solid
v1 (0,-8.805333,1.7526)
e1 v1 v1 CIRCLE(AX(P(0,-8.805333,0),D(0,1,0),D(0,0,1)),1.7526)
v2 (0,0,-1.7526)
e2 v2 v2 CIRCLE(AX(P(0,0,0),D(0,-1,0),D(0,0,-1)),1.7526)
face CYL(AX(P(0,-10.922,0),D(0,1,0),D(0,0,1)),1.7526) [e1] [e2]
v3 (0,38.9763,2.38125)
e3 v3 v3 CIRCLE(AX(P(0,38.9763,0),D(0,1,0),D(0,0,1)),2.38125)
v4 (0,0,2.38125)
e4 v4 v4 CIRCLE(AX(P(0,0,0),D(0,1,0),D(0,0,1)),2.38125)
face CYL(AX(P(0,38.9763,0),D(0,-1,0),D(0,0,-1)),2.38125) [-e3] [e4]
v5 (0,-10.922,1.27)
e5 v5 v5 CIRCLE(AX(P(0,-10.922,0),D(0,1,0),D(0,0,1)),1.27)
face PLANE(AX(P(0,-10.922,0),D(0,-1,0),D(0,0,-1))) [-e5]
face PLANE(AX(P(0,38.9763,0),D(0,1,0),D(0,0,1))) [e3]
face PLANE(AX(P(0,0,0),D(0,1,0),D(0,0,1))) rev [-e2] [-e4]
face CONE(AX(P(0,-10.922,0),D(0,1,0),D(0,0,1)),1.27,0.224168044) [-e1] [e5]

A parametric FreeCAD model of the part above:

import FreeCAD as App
import Part
import Sketcher
from FreeCAD import Vector
Q = App.Units.Quantity


def add_polygon(sketch, points):
    """Adds a closed chain of lines whose ends are joined by coincident constraints."""
    first, n = sketch.GeometryCount, len(points)
    for a, b in zip(points, points[1:] + points[:1]):
        sketch.addGeometry(Part.LineSegment(App.Vector(*a, 0), App.Vector(*b, 0)), False)
    for i in range(n):
        sketch.addConstraint(Sketcher.Constraint("Coincident", first + i, 2, first + (i + 1) % n, 1))

doc = App.newDocument("Part")
params = doc.addObject("Spreadsheet::Sheet", "Params")
for row, (alias, value) in enumerate([
    ("sketch1_diameter", "0.1875 in"),
    ("pad1_length", "1.5345 in"),
    ("sketch2_diameter", "0.138 in"),
    ("pad2_length", "0.43 in"),
    ("sketch3_height", "0.019 in"),
    ("groove_angle", "360 deg"),
], start=1):
    params.set(f"A{row}", alias)
    params.set(f"B{row}", "=" + value)
    params.setAlias(f"B{row}", alias)

body = doc.addObject("PartDesign::Body", "Body")

sketch1 = body.newObject("Sketcher::SketchObject", "Sketch")
sketch1.AttachmentSupport = (doc.getObject("XZ_Plane"), [""])
sketch1.MapMode = "FlatFace"
sketch1.addGeometry(Part.Circle(Vector(0, 0, 0), Vector(0, 0, 1), 2.4), False)
sketch1.addConstraint([
    Sketcher.Constraint("Coincident", 0, 3, -1, 1),
    Sketcher.Constraint("Diameter", 0, Q("0.1875 in")),
])
sketch1.setExpression("Constraints[1]", "Params.sketch1_diameter")
pad1 = body.newObject("PartDesign::Pad", "Pad")
pad1.Profile = sketch1
pad1.setExpression("Length", "Params.pad1_length")
pad1.Reversed = True

sketch2 = body.newObject("Sketcher::SketchObject", "Sketch001")
sketch2.AttachmentSupport = (doc.getObject("XZ_Plane"), [""])
sketch2.MapMode = "FlatFace"
sketch2.addGeometry(Part.Circle(Vector(0, 0, 0), Vector(0, 0, 1), 1.8), False)
sketch2.addConstraint([
    Sketcher.Constraint("Coincident", 0, 3, -1, 1),
    Sketcher.Constraint("Diameter", 0, Q("0.138 in")),
])
sketch2.setExpression("Constraints[1]", "Params.sketch2_diameter")
pad2 = body.newObject("PartDesign::Pad", "Pad001")
pad2.Profile = sketch2
pad2.setExpression("Length", "Params.pad2_length")

sketch3 = body.newObject("Sketcher::SketchObject", "Sketch002")
sketch3.AttachmentSupport = (doc.getObject("YZ_Plane"), [""])
sketch3.MapMode = "FlatFace"
add_polygon(sketch3, [(-8.81, -1.75), (-10.92, -1.27), (-10.92, -1.75)])
sketch3.addConstraint([
    Sketcher.Constraint("Vertical", 1),
    Sketcher.Constraint("Horizontal", 2),
    Sketcher.Constraint("DistanceY", 1, 2, 1, 1, Q("0.019 in")),
    Sketcher.Constraint("DistanceX", 0, 2, -1, 1, Q("0.43 in")),
    Sketcher.Constraint("DistanceY", 0, 2, -1, 1, Q("0.05 in")),
    Sketcher.Constraint("DistanceX", 2, 1, 2, 2, Q("2.116667 mm")),
])
sketch3.setExpression("Constraints[5]", "Params.sketch3_height")
groove = body.newObject("PartDesign::Groove", "Groove")
groove.Profile = sketch3
groove.ReferenceAxis = (sketch3, ["H_Axis"])
groove.setExpression("Angle", "Params.groove_angle")

doc.recompute()
